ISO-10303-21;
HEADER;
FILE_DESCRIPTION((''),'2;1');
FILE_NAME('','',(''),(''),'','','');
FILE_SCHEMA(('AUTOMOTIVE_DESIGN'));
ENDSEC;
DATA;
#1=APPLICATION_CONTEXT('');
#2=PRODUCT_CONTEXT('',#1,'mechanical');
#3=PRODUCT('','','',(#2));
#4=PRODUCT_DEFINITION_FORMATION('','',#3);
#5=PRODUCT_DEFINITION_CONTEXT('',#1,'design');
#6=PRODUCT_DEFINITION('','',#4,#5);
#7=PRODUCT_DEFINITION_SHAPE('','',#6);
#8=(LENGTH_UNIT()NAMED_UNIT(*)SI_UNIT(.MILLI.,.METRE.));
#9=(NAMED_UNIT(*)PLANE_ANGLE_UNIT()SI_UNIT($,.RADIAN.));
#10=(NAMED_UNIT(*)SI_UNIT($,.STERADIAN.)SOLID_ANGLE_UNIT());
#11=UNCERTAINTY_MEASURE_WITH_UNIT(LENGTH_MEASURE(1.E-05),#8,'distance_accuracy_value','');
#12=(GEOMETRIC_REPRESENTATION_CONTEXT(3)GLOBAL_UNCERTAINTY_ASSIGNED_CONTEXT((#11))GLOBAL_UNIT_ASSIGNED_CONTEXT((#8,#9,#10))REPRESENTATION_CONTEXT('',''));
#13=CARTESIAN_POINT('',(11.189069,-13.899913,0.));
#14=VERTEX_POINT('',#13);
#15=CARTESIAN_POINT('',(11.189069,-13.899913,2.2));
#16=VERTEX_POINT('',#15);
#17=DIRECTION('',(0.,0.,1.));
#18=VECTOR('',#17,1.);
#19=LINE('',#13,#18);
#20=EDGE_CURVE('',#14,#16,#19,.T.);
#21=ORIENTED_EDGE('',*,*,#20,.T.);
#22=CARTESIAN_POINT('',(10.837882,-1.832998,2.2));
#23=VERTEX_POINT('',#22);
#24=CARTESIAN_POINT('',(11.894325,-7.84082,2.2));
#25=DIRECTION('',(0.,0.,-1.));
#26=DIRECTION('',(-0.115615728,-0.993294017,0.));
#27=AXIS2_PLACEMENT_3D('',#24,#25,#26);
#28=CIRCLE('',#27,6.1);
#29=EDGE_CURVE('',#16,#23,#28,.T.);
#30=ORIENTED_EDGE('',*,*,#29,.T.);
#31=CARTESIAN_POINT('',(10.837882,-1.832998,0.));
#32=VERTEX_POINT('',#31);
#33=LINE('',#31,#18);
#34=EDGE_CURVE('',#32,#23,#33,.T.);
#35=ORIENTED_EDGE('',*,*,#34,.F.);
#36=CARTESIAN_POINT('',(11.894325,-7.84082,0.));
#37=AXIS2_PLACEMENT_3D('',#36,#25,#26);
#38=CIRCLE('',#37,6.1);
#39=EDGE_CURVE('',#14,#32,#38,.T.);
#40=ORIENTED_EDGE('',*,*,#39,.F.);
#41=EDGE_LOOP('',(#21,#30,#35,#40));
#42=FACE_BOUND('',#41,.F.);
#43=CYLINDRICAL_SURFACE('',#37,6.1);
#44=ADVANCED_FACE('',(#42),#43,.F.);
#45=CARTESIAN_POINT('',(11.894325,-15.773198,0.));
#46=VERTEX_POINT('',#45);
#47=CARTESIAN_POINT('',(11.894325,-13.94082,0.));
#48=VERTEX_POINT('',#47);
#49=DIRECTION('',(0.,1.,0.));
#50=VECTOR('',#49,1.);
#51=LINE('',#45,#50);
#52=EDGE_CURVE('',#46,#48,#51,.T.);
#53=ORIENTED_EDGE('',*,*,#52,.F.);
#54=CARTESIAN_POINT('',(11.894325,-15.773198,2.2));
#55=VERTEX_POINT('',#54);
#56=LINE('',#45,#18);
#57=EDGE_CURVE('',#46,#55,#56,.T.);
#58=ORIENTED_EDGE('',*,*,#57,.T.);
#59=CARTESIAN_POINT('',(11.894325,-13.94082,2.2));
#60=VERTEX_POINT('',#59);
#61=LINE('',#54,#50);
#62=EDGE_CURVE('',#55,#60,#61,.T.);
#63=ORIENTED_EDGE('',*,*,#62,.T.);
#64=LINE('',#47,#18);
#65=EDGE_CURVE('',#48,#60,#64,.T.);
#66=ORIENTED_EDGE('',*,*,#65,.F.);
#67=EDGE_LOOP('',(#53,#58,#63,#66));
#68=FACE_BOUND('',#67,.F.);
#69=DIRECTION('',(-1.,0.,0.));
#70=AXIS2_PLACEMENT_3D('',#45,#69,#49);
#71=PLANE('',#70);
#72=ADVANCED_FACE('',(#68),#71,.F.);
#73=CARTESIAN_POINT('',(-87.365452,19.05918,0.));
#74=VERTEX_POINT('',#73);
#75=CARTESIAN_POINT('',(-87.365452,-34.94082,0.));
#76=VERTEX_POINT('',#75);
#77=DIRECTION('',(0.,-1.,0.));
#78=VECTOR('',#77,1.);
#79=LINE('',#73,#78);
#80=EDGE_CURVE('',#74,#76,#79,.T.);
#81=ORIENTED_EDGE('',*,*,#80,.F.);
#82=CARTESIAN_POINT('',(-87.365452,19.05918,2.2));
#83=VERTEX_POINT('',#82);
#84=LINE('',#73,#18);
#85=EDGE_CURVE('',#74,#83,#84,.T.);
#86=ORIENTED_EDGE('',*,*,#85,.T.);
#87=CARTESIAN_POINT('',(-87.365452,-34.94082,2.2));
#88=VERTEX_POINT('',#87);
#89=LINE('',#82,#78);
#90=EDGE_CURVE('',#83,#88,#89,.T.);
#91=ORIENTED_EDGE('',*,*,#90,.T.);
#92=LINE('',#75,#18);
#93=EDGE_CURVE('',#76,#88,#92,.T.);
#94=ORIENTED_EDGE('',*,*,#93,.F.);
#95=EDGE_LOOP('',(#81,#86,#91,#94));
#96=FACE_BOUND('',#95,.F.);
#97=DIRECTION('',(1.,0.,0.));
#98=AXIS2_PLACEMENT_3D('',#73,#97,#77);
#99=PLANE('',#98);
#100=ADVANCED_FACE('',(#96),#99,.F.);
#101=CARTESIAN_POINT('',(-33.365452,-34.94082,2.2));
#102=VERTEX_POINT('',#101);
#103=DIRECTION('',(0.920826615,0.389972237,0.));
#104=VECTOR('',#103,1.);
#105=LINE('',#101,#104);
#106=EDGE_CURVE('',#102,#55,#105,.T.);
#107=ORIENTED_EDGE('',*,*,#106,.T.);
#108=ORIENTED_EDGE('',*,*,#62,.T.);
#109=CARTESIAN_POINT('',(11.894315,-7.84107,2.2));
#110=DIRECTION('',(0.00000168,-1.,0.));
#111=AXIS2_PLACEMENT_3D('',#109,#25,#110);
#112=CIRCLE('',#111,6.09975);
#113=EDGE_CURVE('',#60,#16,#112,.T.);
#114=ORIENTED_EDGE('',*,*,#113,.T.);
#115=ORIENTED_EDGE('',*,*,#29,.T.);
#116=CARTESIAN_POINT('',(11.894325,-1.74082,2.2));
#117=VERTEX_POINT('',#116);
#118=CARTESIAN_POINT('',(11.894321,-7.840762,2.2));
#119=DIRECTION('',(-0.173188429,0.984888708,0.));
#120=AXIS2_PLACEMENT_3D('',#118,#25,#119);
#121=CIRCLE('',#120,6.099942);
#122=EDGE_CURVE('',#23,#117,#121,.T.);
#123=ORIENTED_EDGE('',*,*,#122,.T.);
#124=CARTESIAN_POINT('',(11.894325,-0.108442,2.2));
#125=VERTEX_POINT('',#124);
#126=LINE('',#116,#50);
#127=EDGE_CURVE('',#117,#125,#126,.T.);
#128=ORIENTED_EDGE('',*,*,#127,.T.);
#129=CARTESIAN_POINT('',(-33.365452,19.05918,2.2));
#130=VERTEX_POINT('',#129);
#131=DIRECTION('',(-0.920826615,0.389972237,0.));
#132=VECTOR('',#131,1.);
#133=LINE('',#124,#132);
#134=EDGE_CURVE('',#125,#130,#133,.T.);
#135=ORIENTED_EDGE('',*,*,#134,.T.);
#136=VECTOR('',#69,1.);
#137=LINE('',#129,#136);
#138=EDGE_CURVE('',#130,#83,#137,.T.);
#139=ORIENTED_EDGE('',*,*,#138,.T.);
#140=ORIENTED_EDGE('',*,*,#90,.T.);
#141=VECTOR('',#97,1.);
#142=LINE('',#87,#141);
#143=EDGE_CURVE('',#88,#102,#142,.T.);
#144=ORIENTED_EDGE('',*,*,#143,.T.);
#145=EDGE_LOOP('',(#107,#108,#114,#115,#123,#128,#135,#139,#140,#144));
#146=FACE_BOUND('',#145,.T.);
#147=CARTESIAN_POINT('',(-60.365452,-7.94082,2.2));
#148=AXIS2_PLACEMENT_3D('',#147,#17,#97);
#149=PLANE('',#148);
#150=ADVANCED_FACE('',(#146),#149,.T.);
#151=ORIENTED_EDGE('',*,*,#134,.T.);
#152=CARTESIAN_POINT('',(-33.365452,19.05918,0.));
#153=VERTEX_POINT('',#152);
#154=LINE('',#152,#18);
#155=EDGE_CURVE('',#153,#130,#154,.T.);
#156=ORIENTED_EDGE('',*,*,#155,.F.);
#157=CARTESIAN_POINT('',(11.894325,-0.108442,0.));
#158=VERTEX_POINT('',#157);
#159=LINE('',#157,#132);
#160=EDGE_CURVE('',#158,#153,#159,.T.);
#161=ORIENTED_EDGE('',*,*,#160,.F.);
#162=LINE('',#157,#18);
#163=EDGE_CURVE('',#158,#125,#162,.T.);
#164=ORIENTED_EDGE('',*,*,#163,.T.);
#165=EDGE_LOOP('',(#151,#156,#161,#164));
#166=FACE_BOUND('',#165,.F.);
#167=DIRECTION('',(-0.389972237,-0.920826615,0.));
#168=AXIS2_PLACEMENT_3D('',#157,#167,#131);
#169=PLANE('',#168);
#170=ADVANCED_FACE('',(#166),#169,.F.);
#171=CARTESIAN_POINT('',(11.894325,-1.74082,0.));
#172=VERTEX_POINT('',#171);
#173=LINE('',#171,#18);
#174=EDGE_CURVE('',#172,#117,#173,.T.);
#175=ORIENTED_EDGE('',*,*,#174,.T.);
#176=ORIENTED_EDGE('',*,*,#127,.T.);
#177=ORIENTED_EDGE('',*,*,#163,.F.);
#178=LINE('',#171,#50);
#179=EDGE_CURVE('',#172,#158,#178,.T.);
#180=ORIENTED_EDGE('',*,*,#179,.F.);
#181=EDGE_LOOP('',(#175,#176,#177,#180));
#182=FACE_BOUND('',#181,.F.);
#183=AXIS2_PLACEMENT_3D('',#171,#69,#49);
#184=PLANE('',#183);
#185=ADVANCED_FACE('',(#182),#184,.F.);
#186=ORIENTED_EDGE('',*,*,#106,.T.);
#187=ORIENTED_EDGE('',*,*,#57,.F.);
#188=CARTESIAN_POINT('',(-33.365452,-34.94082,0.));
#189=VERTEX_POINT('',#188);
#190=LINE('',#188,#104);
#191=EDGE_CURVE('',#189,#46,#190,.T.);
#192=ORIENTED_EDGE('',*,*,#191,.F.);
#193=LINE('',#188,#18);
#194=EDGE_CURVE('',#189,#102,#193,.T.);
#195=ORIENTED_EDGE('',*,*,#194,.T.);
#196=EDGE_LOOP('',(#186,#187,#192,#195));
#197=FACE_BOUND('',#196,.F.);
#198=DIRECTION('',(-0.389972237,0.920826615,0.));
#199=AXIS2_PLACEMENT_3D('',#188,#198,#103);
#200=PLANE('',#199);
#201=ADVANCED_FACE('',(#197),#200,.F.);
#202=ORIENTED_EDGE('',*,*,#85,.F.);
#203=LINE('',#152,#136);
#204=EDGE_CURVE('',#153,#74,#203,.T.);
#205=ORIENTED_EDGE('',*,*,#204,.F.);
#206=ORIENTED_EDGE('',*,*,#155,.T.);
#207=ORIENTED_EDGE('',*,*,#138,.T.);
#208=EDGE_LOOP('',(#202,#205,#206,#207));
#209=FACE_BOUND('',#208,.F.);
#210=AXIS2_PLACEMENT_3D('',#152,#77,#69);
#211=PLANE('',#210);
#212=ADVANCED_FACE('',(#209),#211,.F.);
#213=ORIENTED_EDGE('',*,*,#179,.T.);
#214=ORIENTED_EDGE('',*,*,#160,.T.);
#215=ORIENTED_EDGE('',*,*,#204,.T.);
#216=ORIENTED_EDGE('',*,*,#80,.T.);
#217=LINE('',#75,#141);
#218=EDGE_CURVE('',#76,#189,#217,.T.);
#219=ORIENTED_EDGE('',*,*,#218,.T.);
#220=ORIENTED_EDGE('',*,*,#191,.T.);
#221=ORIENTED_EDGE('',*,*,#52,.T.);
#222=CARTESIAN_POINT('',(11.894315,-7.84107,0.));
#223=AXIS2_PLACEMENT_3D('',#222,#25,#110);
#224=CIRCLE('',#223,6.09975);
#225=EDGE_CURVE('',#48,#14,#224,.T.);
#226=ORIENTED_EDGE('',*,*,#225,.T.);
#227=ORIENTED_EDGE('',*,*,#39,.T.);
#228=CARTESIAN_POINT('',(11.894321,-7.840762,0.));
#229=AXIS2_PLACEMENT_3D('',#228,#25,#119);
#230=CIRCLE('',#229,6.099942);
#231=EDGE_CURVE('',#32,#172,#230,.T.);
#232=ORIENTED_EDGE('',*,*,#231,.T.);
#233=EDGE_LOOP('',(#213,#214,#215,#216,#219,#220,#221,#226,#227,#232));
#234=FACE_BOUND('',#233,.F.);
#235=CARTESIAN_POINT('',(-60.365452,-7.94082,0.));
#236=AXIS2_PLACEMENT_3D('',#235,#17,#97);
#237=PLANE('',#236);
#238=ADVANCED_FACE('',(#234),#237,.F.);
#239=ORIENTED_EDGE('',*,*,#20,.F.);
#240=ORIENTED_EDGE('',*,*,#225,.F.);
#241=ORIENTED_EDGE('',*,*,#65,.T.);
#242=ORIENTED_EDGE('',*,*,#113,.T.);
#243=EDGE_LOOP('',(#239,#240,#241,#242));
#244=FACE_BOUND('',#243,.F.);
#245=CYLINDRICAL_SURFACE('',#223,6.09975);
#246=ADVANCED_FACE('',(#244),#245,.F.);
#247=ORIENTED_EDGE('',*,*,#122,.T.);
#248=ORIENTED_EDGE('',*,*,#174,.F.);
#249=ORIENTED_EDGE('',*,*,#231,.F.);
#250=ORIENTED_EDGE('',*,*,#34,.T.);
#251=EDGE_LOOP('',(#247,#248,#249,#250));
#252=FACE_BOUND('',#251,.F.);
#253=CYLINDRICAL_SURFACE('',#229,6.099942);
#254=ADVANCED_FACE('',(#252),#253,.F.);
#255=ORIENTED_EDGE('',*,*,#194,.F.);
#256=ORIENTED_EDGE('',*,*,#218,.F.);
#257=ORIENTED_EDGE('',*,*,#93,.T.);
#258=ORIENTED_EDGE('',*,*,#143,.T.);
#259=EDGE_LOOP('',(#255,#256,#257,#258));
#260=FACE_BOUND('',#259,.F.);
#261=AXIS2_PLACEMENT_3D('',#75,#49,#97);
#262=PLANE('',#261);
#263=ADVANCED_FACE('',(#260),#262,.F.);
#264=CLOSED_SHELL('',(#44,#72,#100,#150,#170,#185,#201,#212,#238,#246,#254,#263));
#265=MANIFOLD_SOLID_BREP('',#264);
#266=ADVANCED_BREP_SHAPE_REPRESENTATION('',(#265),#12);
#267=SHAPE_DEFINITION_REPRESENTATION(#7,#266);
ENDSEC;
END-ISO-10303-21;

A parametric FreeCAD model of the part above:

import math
import FreeCAD as App
import Part
import Sketcher
from FreeCAD import Vector

doc = App.newDocument("Part")
body = doc.addObject("PartDesign::Body", "Body")

# Sketch on XY plane
sketch1 = body.newObject("Sketcher::SketchObject", "Sketch")
sketch1.AttachmentSupport = (doc.getObject("XY_Plane"), [""])
sketch1.MapMode = "FlatFace"
sketch1.addGeometry([
    Part.LineSegment(Vector(-33.365452, 19.05918, 0), Vector(-87.365452, 19.05918, 0)),  # 0
    Part.LineSegment(Vector(-87.365452, 19.05918, 0), Vector(-87.365452, -34.94082, 0)),  # 1
    Part.LineSegment(Vector(-87.365452, -34.94082, 0), Vector(-33.365452, -34.94082, 0)),  # 2
    Part.LineSegment(Vector(-33.365452, -34.94082, 0), Vector(11.894325, -15.773198, 0)),  # 3
    Part.LineSegment(Vector(11.894325, -15.773198, 0), Vector(11.894325, -13.94082, 0)),  # 4
    Part.ArcOfCircle(Part.Circle(Vector(11.894315, -7.84107, 0), Vector(0, 0, 1), 6.09975), math.radians(-96.639317), math.radians(-89.999904)),  # 5
    Part.ArcOfCircle(Part.Circle(Vector(11.894325, -7.84082, 0), Vector(0, 0, 1), 6.1), math.radians(99.973192), math.radians(263.360859)),  # 6
    Part.ArcOfCircle(Part.Circle(Vector(11.894321, -7.840762, 0), Vector(0, 0, 1), 6.099942), math.radians(89.999966), math.radians(99.973253)),  # 7
    Part.LineSegment(Vector(11.894325, -1.74082, 0), Vector(11.894325, -0.108442, 0)),  # 8
    Part.LineSegment(Vector(11.894325, -0.108442, 0), Vector(-33.365452, 19.05918, 0)),  # 9
], False)
sketch1.addConstraint([
    Sketcher.Constraint("Coincident", 0, 2, 1, 1),
    Sketcher.Constraint("Coincident", 1, 2, 2, 1),
    Sketcher.Constraint("Coincident", 2, 2, 3, 1),
    Sketcher.Constraint("Coincident", 3, 2, 4, 1),
    Sketcher.Constraint("Coincident", 4, 2, 5, 2),
    Sketcher.Constraint("Coincident", 5, 1, 6, 2),
    Sketcher.Constraint("Coincident", 6, 1, 7, 2),
    Sketcher.Constraint("Coincident", 7, 1, 8, 1),
    Sketcher.Constraint("Coincident", 8, 2, 9, 1),
    Sketcher.Constraint("Coincident", 9, 2, 0, 1),
    Sketcher.Constraint("Horizontal", 0),
    Sketcher.Constraint("Vertical", 1),
    Sketcher.Constraint("Horizontal", 2),
    Sketcher.Constraint("Vertical", 4),
    Sketcher.Constraint("Vertical", 8),
    Sketcher.Constraint("Radius", 6, 6.1),
    Sketcher.Constraint("DistanceX", 0, 2, 0, 1, 54.0),
    Sketcher.Constraint("DistanceX", 2, 1, 2, 2, 54.0),
    Sketcher.Constraint("DistanceY", 1, 2, 1, 1, 54.0),
    Sketcher.Constraint("DistanceY", 2, 2, 4, 2, 21.0),
    Sketcher.Constraint("DistanceY", 6, 3, 0, 2, 26.9),
    Sketcher.Constraint("DistanceY", 6, 3, 7, 1, 6.1),
    Sketcher.Constraint("Radius", 5, 6.09975),
    Sketcher.Constraint("Radius", 7, 6.099942),
    Sketcher.Constraint("DistanceY", 4, 1, 4, 2, 1.832378),
    Sketcher.Constraint("DistanceY", 8, 1, 8, 2, 1.632378),
    Sketcher.Constraint("DistanceY", 3, 2, -1, 1, 15.773198),
    Sketcher.Constraint("DistanceX", -1, 1, 7, 3, 11.894321),
    Sketcher.Constraint("DistanceX", 2, 2, -1, 1, 33.365452),
    Sketcher.Constraint("DistanceX", -1, 1, 5, 1, 11.189069),
    Sketcher.Constraint("DistanceX", -1, 1, 6, 1, 10.837882),
    Sketcher.Constraint("Distance", 3, 49.151248),
    Sketcher.Constraint("Distance", 9, 49.151248),
])
pad1 = body.newObject("PartDesign::Pad", "Pad")
pad1.Profile = sketch1
pad1.Length = 2.2

doc.recompute()
